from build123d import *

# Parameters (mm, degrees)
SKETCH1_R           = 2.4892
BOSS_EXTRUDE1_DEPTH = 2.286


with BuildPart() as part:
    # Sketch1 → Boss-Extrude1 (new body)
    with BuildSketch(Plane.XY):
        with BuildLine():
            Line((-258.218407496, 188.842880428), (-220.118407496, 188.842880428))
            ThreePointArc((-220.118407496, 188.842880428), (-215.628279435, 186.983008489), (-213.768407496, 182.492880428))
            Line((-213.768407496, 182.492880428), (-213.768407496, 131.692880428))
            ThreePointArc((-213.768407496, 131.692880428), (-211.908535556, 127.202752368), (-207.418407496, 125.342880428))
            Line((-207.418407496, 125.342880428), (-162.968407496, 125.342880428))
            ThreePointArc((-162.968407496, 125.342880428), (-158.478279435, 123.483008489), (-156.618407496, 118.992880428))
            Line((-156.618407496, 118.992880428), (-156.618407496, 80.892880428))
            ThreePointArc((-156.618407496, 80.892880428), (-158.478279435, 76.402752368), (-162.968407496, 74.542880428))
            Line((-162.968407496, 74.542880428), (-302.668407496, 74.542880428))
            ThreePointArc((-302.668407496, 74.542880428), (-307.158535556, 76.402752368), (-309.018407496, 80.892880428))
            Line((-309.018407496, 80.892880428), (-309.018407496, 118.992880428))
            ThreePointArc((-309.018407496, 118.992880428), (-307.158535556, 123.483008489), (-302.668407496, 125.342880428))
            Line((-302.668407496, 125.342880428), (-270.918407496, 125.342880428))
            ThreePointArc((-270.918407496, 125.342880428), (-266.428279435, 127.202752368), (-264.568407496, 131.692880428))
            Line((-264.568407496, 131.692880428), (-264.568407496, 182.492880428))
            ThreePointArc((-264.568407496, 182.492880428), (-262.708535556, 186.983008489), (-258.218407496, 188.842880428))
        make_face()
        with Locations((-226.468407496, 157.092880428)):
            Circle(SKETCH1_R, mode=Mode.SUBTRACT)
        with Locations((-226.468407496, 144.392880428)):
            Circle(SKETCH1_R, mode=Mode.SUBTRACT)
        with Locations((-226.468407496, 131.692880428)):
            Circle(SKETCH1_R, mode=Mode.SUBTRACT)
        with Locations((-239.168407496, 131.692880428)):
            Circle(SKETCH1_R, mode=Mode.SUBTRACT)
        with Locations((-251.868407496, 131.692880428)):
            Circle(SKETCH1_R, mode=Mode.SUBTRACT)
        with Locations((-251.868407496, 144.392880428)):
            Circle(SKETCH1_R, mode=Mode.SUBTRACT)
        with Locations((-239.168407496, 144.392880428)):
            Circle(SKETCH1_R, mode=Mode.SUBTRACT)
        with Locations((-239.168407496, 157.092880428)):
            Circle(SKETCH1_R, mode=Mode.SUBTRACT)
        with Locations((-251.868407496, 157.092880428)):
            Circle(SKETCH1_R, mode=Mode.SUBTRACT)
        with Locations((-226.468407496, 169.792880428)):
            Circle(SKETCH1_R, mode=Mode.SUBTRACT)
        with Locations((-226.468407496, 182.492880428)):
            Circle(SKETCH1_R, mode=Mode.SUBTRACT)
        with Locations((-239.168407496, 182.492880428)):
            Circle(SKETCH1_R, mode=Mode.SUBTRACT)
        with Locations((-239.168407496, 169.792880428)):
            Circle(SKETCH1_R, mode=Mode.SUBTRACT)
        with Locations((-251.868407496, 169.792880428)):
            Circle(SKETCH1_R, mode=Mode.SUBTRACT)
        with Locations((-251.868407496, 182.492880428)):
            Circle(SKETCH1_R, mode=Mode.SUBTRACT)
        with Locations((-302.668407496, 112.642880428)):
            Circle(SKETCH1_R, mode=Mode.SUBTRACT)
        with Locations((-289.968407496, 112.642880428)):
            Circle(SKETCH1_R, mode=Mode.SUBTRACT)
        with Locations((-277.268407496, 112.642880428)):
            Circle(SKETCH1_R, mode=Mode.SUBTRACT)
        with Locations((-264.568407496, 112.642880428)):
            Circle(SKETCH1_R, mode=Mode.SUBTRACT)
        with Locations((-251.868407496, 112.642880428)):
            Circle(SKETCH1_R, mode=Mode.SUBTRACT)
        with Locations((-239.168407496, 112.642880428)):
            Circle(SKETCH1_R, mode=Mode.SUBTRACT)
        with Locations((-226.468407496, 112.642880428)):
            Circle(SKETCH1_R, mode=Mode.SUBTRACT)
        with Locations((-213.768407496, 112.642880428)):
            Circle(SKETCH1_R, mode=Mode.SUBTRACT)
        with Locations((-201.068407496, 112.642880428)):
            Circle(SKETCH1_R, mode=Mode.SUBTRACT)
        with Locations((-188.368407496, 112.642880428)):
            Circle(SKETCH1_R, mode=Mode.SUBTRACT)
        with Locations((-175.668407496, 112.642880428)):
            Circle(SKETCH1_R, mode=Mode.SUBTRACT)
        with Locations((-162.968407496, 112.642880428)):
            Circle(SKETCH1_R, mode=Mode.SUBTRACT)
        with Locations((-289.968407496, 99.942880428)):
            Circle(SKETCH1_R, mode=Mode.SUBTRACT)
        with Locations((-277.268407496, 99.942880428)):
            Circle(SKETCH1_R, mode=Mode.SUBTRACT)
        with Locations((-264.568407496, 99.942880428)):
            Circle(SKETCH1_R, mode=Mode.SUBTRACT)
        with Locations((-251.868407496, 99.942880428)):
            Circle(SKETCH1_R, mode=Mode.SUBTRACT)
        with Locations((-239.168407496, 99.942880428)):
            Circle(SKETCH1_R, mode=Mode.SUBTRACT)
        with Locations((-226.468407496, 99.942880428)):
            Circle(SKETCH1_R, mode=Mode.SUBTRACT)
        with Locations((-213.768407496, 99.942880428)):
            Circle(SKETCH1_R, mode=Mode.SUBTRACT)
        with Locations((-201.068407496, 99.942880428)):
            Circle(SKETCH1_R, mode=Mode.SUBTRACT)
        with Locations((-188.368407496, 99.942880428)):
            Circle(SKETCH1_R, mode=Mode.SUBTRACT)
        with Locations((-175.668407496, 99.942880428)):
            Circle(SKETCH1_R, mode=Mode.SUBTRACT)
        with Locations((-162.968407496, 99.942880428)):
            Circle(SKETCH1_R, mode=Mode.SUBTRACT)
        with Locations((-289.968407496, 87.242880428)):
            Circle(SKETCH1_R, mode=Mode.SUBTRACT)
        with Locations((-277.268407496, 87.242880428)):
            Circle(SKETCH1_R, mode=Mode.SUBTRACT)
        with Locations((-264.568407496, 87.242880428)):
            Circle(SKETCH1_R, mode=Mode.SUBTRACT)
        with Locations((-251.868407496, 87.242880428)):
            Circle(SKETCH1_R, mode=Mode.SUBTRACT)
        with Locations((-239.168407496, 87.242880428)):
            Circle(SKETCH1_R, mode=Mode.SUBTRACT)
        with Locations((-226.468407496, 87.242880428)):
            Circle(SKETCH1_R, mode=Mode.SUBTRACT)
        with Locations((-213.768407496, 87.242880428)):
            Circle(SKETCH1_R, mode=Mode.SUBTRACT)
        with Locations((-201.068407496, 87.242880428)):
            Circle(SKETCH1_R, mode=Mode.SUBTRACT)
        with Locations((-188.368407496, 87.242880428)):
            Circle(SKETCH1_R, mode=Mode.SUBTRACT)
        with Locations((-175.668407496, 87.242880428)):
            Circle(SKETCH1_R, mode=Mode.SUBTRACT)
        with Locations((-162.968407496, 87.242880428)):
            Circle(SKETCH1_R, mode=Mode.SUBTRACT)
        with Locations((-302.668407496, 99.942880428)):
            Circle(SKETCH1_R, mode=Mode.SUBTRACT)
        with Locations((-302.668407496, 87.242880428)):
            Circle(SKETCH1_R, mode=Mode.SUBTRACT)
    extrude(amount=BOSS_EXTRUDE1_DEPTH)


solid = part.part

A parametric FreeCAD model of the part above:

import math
import FreeCAD as App
import Part
import Sketcher
from FreeCAD import Vector
Q = App.Units.Quantity

doc = App.newDocument("Part")
body = doc.addObject("PartDesign::Body", "Body")

sketch1 = body.newObject("Sketcher::SketchObject", "Sketch")
sketch1.AttachmentSupport = (doc.getObject("XY_Plane"), [""])
sketch1.MapMode = "FlatFace"
sketch1.addGeometry(Part.LineSegment(Vector(-220.1, 188.8, 0), Vector(-258.2, 188.8, 0)), False)
sketch1.addGeometry(Part.ArcOfCircle(Part.Circle(Vector(-258.2, 182.5, 0), Vector(0, 0, 1), 6.3), math.radians(90), math.radians(180)), False)
sketch1.addGeometry(Part.LineSegment(Vector(-264.6, 182.5, 0), Vector(-264.6, 131.7, 0)), False)
sketch1.addGeometry(Part.ArcOfCircle(Part.Circle(Vector(-270.9, 131.7, 0), Vector(0, 0, 1), 6.3), math.radians(-90), math.radians(0)), False)
sketch1.addGeometry(Part.LineSegment(Vector(-270.9, 125.3, 0), Vector(-302.7, 125.3, 0)), False)
sketch1.addGeometry(Part.ArcOfCircle(Part.Circle(Vector(-302.7, 119, 0), Vector(0, 0, 1), 6.3), math.radians(90), math.radians(180)), False)
sketch1.addGeometry(Part.LineSegment(Vector(-309, 119, 0), Vector(-309, 80.9, 0)), False)
sketch1.addGeometry(Part.ArcOfCircle(Part.Circle(Vector(-302.7, 80.9, 0), Vector(0, 0, 1), 6.4), math.radians(-180), math.radians(-90)), False)
sketch1.addGeometry(Part.LineSegment(Vector(-302.7, 74.5, 0), Vector(-163, 74.5, 0)), False)
sketch1.addGeometry(Part.ArcOfCircle(Part.Circle(Vector(-163, 80.9, 0), Vector(0, 0, 1), 6.3), math.radians(-90), math.radians(0)), False)
sketch1.addGeometry(Part.LineSegment(Vector(-156.6, 80.9, 0), Vector(-156.6, 119, 0)), False)
sketch1.addGeometry(Part.ArcOfCircle(Part.Circle(Vector(-163, 119, 0), Vector(0, 0, 1), 6.3), math.radians(0), math.radians(90)), False)
sketch1.addGeometry(Part.LineSegment(Vector(-163, 125.3, 0), Vector(-207.4, 125.3, 0)), False)
sketch1.addGeometry(Part.ArcOfCircle(Part.Circle(Vector(-207.4, 131.7, 0), Vector(0, 0, 1), 6.4), math.radians(-180), math.radians(-90)), False)
sketch1.addGeometry(Part.LineSegment(Vector(-213.8, 131.7, 0), Vector(-213.8, 182.5, 0)), False)
sketch1.addGeometry(Part.ArcOfCircle(Part.Circle(Vector(-220.1, 182.5, 0), Vector(0, 0, 1), 6.3), math.radians(0), math.radians(90)), False)
sketch1.addGeometry(Part.Circle(Vector(-163, 87.2, 0), Vector(0, 0, 1), 2.5), False)
sketch1.addGeometry(Part.Circle(Vector(-175.7, 87.2, 0), Vector(0, 0, 1), 2.5), False)
sketch1.addGeometry(Part.Circle(Vector(-188.4, 87.2, 0), Vector(0, 0, 1), 2.5), False)
sketch1.addGeometry(Part.Circle(Vector(-163, 99.9, 0), Vector(0, 0, 1), 2.5), False)
sketch1.addGeometry(Part.Circle(Vector(-175.7, 99.9, 0), Vector(0, 0, 1), 2.5), False)
sketch1.addGeometry(Part.Circle(Vector(-188.4, 99.9, 0), Vector(0, 0, 1), 2.5), False)
sketch1.addGeometry(Part.Circle(Vector(-201.1, 87.2, 0), Vector(0, 0, 1), 2.5), False)
sketch1.addGeometry(Part.Circle(Vector(-213.8, 87.2, 0), Vector(0, 0, 1), 2.5), False)
sketch1.addGeometry(Part.Circle(Vector(-226.5, 87.2, 0), Vector(0, 0, 1), 2.5), False)
sketch1.addGeometry(Part.Circle(Vector(-201.1, 99.9, 0), Vector(0, 0, 1), 2.5), False)
sketch1.addGeometry(Part.Circle(Vector(-213.8, 99.9, 0), Vector(0, 0, 1), 2.5), False)
sketch1.addGeometry(Part.Circle(Vector(-226.5, 99.9, 0), Vector(0, 0, 1), 2.5), False)
sketch1.addGeometry(Part.Circle(Vector(-163, 112.6, 0), Vector(0, 0, 1), 2.5), False)
sketch1.addGeometry(Part.Circle(Vector(-175.7, 112.6, 0), Vector(0, 0, 1), 2.5), False)
sketch1.addGeometry(Part.Circle(Vector(-188.4, 112.6, 0), Vector(0, 0, 1), 2.5), False)
sketch1.addGeometry(Part.Circle(Vector(-201.1, 112.6, 0), Vector(0, 0, 1), 2.5), False)
sketch1.addGeometry(Part.Circle(Vector(-213.8, 112.6, 0), Vector(0, 0, 1), 2.5), False)
sketch1.addGeometry(Part.Circle(Vector(-226.5, 112.6, 0), Vector(0, 0, 1), 2.5), False)
sketch1.addGeometry(Part.Circle(Vector(-226.5, 131.7, 0), Vector(0, 0, 1), 2.5), False)
sketch1.addGeometry(Part.Circle(Vector(-239.2, 87.2, 0), Vector(0, 0, 1), 2.5), False)
sketch1.addGeometry(Part.Circle(Vector(-251.9, 87.2, 0), Vector(0, 0, 1), 2.5), False)
sketch1.addGeometry(Part.Circle(Vector(-264.6, 87.2, 0), Vector(0, 0, 1), 2.5), False)
sketch1.addGeometry(Part.Circle(Vector(-239.2, 99.9, 0), Vector(0, 0, 1), 2.5), False)
sketch1.addGeometry(Part.Circle(Vector(-251.9, 99.9, 0), Vector(0, 0, 1), 2.5), False)
sketch1.addGeometry(Part.Circle(Vector(-264.6, 99.9, 0), Vector(0, 0, 1), 2.5), False)
sketch1.addGeometry(Part.Circle(Vector(-277.3, 87.2, 0), Vector(0, 0, 1), 2.5), False)
sketch1.addGeometry(Part.Circle(Vector(-290, 87.2, 0), Vector(0, 0, 1), 2.5), False)
sketch1.addGeometry(Part.Circle(Vector(-302.7, 87.2, 0), Vector(0, 0, 1), 2.5), False)
sketch1.addGeometry(Part.Circle(Vector(-277.3, 99.9, 0), Vector(0, 0, 1), 2.5), False)
sketch1.addGeometry(Part.Circle(Vector(-290, 99.9, 0), Vector(0, 0, 1), 2.5), False)
sketch1.addGeometry(Part.Circle(Vector(-302.7, 99.9, 0), Vector(0, 0, 1), 2.5), False)
sketch1.addGeometry(Part.Circle(Vector(-239.2, 112.6, 0), Vector(0, 0, 1), 2.5), False)
sketch1.addGeometry(Part.Circle(Vector(-251.9, 112.6, 0), Vector(0, 0, 1), 2.5), False)
sketch1.addGeometry(Part.Circle(Vector(-264.6, 112.6, 0), Vector(0, 0, 1), 2.5), False)
sketch1.addGeometry(Part.Circle(Vector(-239.2, 131.7, 0), Vector(0, 0, 1), 2.5), False)
sketch1.addGeometry(Part.Circle(Vector(-251.9, 131.7, 0), Vector(0, 0, 1), 2.5), False)
sketch1.addGeometry(Part.Circle(Vector(-277.3, 112.6, 0), Vector(0, 0, 1), 2.5), False)
sketch1.addGeometry(Part.Circle(Vector(-290, 112.6, 0), Vector(0, 0, 1), 2.5), False)
sketch1.addGeometry(Part.Circle(Vector(-302.7, 112.6, 0), Vector(0, 0, 1), 2.5), False)
sketch1.addGeometry(Part.Circle(Vector(-226.5, 144.4, 0), Vector(0, 0, 1), 2.5), False)
sketch1.addGeometry(Part.Circle(Vector(-226.5, 157.1, 0), Vector(0, 0, 1), 2.5), False)
sketch1.addGeometry(Part.Circle(Vector(-226.5, 169.8, 0), Vector(0, 0, 1), 2.5), False)
sketch1.addGeometry(Part.Circle(Vector(-226.5, 182.5, 0), Vector(0, 0, 1), 2.5), False)
sketch1.addGeometry(Part.Circle(Vector(-239.2, 144.4, 0), Vector(0, 0, 1), 2.5), False)
sketch1.addGeometry(Part.Circle(Vector(-251.9, 144.4, 0), Vector(0, 0, 1), 2.5), False)
sketch1.addGeometry(Part.Circle(Vector(-239.2, 157.1, 0), Vector(0, 0, 1), 2.5), False)
sketch1.addGeometry(Part.Circle(Vector(-251.9, 157.1, 0), Vector(0, 0, 1), 2.5), False)
sketch1.addGeometry(Part.Circle(Vector(-239.2, 169.8, 0), Vector(0, 0, 1), 2.5), False)
sketch1.addGeometry(Part.Circle(Vector(-251.9, 169.8, 0), Vector(0, 0, 1), 2.5), False)
sketch1.addGeometry(Part.Circle(Vector(-239.2, 182.5, 0), Vector(0, 0, 1), 2.5), False)
sketch1.addGeometry(Part.Circle(Vector(-251.9, 182.5, 0), Vector(0, 0, 1), 2.5), False)
sketch1.addConstraint(Sketcher.Constraint("Tangent", 0, 2, 1, 1))
sketch1.addConstraint(Sketcher.Constraint("Tangent", 1, 2, 2, 1))
sketch1.addConstraint(Sketcher.Constraint("Tangent", 2, 2, 3, 2))
sketch1.addConstraint(Sketcher.Constraint("Tangent", 3, 1, 4, 1))
sketch1.addConstraint(Sketcher.Constraint("Tangent", 4, 2, 5, 1))
sketch1.addConstraint(Sketcher.Constraint("Tangent", 5, 2, 6, 1))
sketch1.addConstraint(Sketcher.Constraint("Tangent", 6, 2, 7, 1))
sketch1.addConstraint(Sketcher.Constraint("Tangent", 7, 2, 8, 1))
sketch1.addConstraint(Sketcher.Constraint("Tangent", 8, 2, 9, 1))
sketch1.addConstraint(Sketcher.Constraint("Tangent", 9, 2, 10, 1))
sketch1.addConstraint(Sketcher.Constraint("Tangent", 10, 2, 11, 1))
sketch1.addConstraint(Sketcher.Constraint("Tangent", 11, 2, 12, 1))
sketch1.addConstraint(Sketcher.Constraint("Tangent", 12, 2, 13, 2))
sketch1.addConstraint(Sketcher.Constraint("Tangent", 13, 1, 14, 1))
sketch1.addConstraint(Sketcher.Constraint("Tangent", 14, 2, 15, 1))
sketch1.addConstraint(Sketcher.Constraint("Tangent", 15, 2, 0, 1))
sketch1.addConstraint(Sketcher.Constraint("Horizontal", 0))
sketch1.addConstraint(Sketcher.Constraint("Vertical", 2))
sketch1.addConstraint(Sketcher.Constraint("Horizontal", 4))
sketch1.addConstraint(Sketcher.Constraint("Vertical", 6))
sketch1.addConstraint(Sketcher.Constraint("Horizontal", 8))
sketch1.addConstraint(Sketcher.Constraint("Vertical", 10))
sketch1.addConstraint(Sketcher.Constraint("Horizontal", 12))
sketch1.addConstraint(Sketcher.Constraint("Vertical", 14))
sketch1.addConstraint(Sketcher.Constraint("Equal", 1, 3))
sketch1.addConstraint(Sketcher.Constraint("Equal", 3, 5))
sketch1.addConstraint(Sketcher.Constraint("Equal", 5, 7))
sketch1.addConstraint(Sketcher.Constraint("Equal", 7, 9))
sketch1.addConstraint(Sketcher.Constraint("Equal", 9, 11))
sketch1.addConstraint(Sketcher.Constraint("Equal", 11, 13))
sketch1.addConstraint(Sketcher.Constraint("Equal", 13, 15))
sketch1.addConstraint(Sketcher.Constraint("Equal", 16, 17))
sketch1.addConstraint(Sketcher.Constraint("Equal", 17, 18))
sketch1.addConstraint(Sketcher.Constraint("Equal", 18, 19))
sketch1.addConstraint(Sketcher.Constraint("Equal", 19, 20))
sketch1.addConstraint(Sketcher.Constraint("Equal", 20, 21))
sketch1.addConstraint(Sketcher.Constraint("Equal", 21, 22))
sketch1.addConstraint(Sketcher.Constraint("Equal", 22, 23))
sketch1.addConstraint(Sketcher.Constraint("Equal", 23, 24))
sketch1.addConstraint(Sketcher.Constraint("Equal", 24, 25))
sketch1.addConstraint(Sketcher.Constraint("Equal", 25, 26))
sketch1.addConstraint(Sketcher.Constraint("Equal", 26, 27))
sketch1.addConstraint(Sketcher.Constraint("Equal", 27, 28))
sketch1.addConstraint(Sketcher.Constraint("Equal", 28, 29))
sketch1.addConstraint(Sketcher.Constraint("Equal", 29, 30))
sketch1.addConstraint(Sketcher.Constraint("Equal", 30, 31))
sketch1.addConstraint(Sketcher.Constraint("Equal", 31, 32))
sketch1.addConstraint(Sketcher.Constraint("Equal", 32, 33))
sketch1.addConstraint(Sketcher.Constraint("Equal", 33, 34))
sketch1.addConstraint(Sketcher.Constraint("Equal", 34, 35))
sketch1.addConstraint(Sketcher.Constraint("Equal", 35, 36))
sketch1.addConstraint(Sketcher.Constraint("Equal", 36, 37))
sketch1.addConstraint(Sketcher.Constraint("Equal", 37, 38))
sketch1.addConstraint(Sketcher.Constraint("Equal", 38, 39))
sketch1.addConstraint(Sketcher.Constraint("Equal", 39, 40))
sketch1.addConstraint(Sketcher.Constraint("Equal", 40, 41))
sketch1.addConstraint(Sketcher.Constraint("Equal", 41, 42))
sketch1.addConstraint(Sketcher.Constraint("Equal", 42, 43))
sketch1.addConstraint(Sketcher.Constraint("Equal", 43, 44))
sketch1.addConstraint(Sketcher.Constraint("Equal", 44, 45))
sketch1.addConstraint(Sketcher.Constraint("Equal", 45, 46))
sketch1.addConstraint(Sketcher.Constraint("Equal", 46, 47))
sketch1.addConstraint(Sketcher.Constraint("Equal", 47, 48))
sketch1.addConstraint(Sketcher.Constraint("Equal", 48, 49))
sketch1.addConstraint(Sketcher.Constraint("Equal", 49, 50))
sketch1.addConstraint(Sketcher.Constraint("Equal", 50, 51))
sketch1.addConstraint(Sketcher.Constraint("Equal", 51, 52))
sketch1.addConstraint(Sketcher.Constraint("Equal", 52, 53))
sketch1.addConstraint(Sketcher.Constraint("Equal", 53, 54))
sketch1.addConstraint(Sketcher.Constraint("Equal", 54, 55))
sketch1.addConstraint(Sketcher.Constraint("Equal", 55, 56))
sketch1.addConstraint(Sketcher.Constraint("Equal", 56, 57))
sketch1.addConstraint(Sketcher.Constraint("Equal", 57, 58))
sketch1.addConstraint(Sketcher.Constraint("Equal", 58, 59))
sketch1.addConstraint(Sketcher.Constraint("Equal", 59, 60))
sketch1.addConstraint(Sketcher.Constraint("Equal", 60, 61))
sketch1.addConstraint(Sketcher.Constraint("Equal", 61, 62))
sketch1.addConstraint(Sketcher.Constraint("Equal", 62, 63))
sketch1.addConstraint(Sketcher.Constraint("Equal", 63, 64))
sketch1.addConstraint(Sketcher.Constraint("Equal", 64, 65))
sketch1.addConstraint(Sketcher.Constraint("Equal", 65, 66))
sketch1.addConstraint(Sketcher.Constraint("Horizontal", 5, 3, 11, 3))
sketch1.addConstraint(Sketcher.Constraint("Horizontal", 16, 3, 17, 3))
sketch1.addConstraint(Sketcher.Constraint("Horizontal", 17, 3, 18, 3))
sketch1.addConstraint(Sketcher.Constraint("Horizontal", 19, 3, 20, 3))
sketch1.addConstraint(Sketcher.Constraint("Horizontal", 20, 3, 21, 3))
sketch1.addConstraint(Sketcher.Constraint("Horizontal", 18, 3, 22, 3))
sketch1.addConstraint(Sketcher.Constraint("Horizontal", 22, 3, 23, 3))
sketch1.addConstraint(Sketcher.Constraint("Horizontal", 23, 3, 24, 3))
sketch1.addConstraint(Sketcher.Constraint("Horizontal", 21, 3, 25, 3))
sketch1.addConstraint(Sketcher.Constraint("Horizontal", 25, 3, 26, 3))
sketch1.addConstraint(Sketcher.Constraint("Horizontal", 26, 3, 27, 3))
sketch1.addConstraint(Sketcher.Constraint("Horizontal", 28, 3, 29, 3))
sketch1.addConstraint(Sketcher.Constraint("Horizontal", 29, 3, 30, 3))
sketch1.addConstraint(Sketcher.Constraint("Horizontal", 30, 3, 31, 3))
sketch1.addConstraint(Sketcher.Constraint("Horizontal", 31, 3, 32, 3))
sketch1.addConstraint(Sketcher.Constraint("Horizontal", 32, 3, 33, 3))
sketch1.addConstraint(Sketcher.Constraint("Horizontal", 13, 3, 34, 3))
sketch1.addConstraint(Sketcher.Constraint("Horizontal", 24, 3, 35, 3))
sketch1.addConstraint(Sketcher.Constraint("Horizontal", 35, 3, 36, 3))
sketch1.addConstraint(Sketcher.Constraint("Horizontal", 36, 3, 37, 3))
sketch1.addConstraint(Sketcher.Constraint("Horizontal", 27, 3, 38, 3))
sketch1.addConstraint(Sketcher.Constraint("Horizontal", 38, 3, 39, 3))
sketch1.addConstraint(Sketcher.Constraint("Horizontal", 39, 3, 40, 3))
sketch1.addConstraint(Sketcher.Constraint("Horizontal", 37, 3, 41, 3))
sketch1.addConstraint(Sketcher.Constraint("Horizontal", 41, 3, 42, 3))
sketch1.addConstraint(Sketcher.Constraint("Horizontal", 42, 3, 43, 3))
sketch1.addConstraint(Sketcher.Constraint("Horizontal", 40, 3, 44, 3))
sketch1.addConstraint(Sketcher.Constraint("Horizontal", 44, 3, 45, 3))
sketch1.addConstraint(Sketcher.Constraint("Horizontal", 45, 3, 46, 3))
sketch1.addConstraint(Sketcher.Constraint("Horizontal", 33, 3, 47, 3))
sketch1.addConstraint(Sketcher.Constraint("Horizontal", 47, 3, 48, 3))
sketch1.addConstraint(Sketcher.Constraint("Horizontal", 48, 3, 49, 3))
sketch1.addConstraint(Sketcher.Constraint("Horizontal", 34, 3, 50, 3))
sketch1.addConstraint(Sketcher.Constraint("Horizontal", 50, 3, 51, 3))
sketch1.addConstraint(Sketcher.Constraint("Horizontal", 49, 3, 52, 3))
sketch1.addConstraint(Sketcher.Constraint("Horizontal", 52, 3, 53, 3))
sketch1.addConstraint(Sketcher.Constraint("Horizontal", 53, 3, 54, 3))
sketch1.addConstraint(Sketcher.Constraint("Horizontal", 15, 3, 58, 3))
sketch1.addConstraint(Sketcher.Constraint("Horizontal", 55, 3, 59, 3))
sketch1.addConstraint(Sketcher.Constraint("Horizontal", 59, 3, 60, 3))
sketch1.addConstraint(Sketcher.Constraint("Horizontal", 56, 3, 61, 3))
sketch1.addConstraint(Sketcher.Constraint("Horizontal", 61, 3, 62, 3))
sketch1.addConstraint(Sketcher.Constraint("Horizontal", 57, 3, 63, 3))
sketch1.addConstraint(Sketcher.Constraint("Horizontal", 63, 3, 64, 3))
sketch1.addConstraint(Sketcher.Constraint("Horizontal", 58, 3, 65, 3))
sketch1.addConstraint(Sketcher.Constraint("Horizontal", 65, 3, 66, 3))
sketch1.addConstraint(Sketcher.Constraint("Vertical", 11, 3, 16, 3))
sketch1.addConstraint(Sketcher.Constraint("Vertical", 16, 3, 19, 3))
sketch1.addConstraint(Sketcher.Constraint("Vertical", 17, 3, 20, 3))
sketch1.addConstraint(Sketcher.Constraint("Vertical", 18, 3, 21, 3))
sketch1.addConstraint(Sketcher.Constraint("Vertical", 22, 3, 25, 3))
sketch1.addConstraint(Sketcher.Constraint("Vertical", 23, 3, 26, 3))
sketch1.addConstraint(Sketcher.Constraint("Vertical", 24, 3, 27, 3))
sketch1.addConstraint(Sketcher.Constraint("Vertical", 19, 3, 28, 3))
sketch1.addConstraint(Sketcher.Constraint("Vertical", 20, 3, 29, 3))
sketch1.addConstraint(Sketcher.Constraint("Vertical", 21, 3, 30, 3))
sketch1.addConstraint(Sketcher.Constraint("Vertical", 25, 3, 31, 3))
sketch1.addConstraint(Sketcher.Constraint("Vertical", 26, 3, 32, 3))
sketch1.addConstraint(Sketcher.Constraint("Vertical", 27, 3, 33, 3))
sketch1.addConstraint(Sketcher.Constraint("Vertical", 33, 3, 34, 3))
sketch1.addConstraint(Sketcher.Constraint("Vertical", 35, 3, 38, 3))
sketch1.addConstraint(Sketcher.Constraint("Vertical", 36, 3, 39, 3))
sketch1.addConstraint(Sketcher.Constraint("Vertical", 37, 3, 40, 3))
sketch1.addConstraint(Sketcher.Constraint("Vertical", 7, 3, 43, 3))
sketch1.addConstraint(Sketcher.Constraint("Vertical", 41, 3, 44, 3))
sketch1.addConstraint(Sketcher.Constraint("Vertical", 42, 3, 45, 3))
sketch1.addConstraint(Sketcher.Constraint("Vertical", 43, 3, 46, 3))
sketch1.addConstraint(Sketcher.Constraint("Vertical", 38, 3, 47, 3))
sketch1.addConstraint(Sketcher.Constraint("Vertical", 39, 3, 48, 3))
sketch1.addConstraint(Sketcher.Constraint("Vertical", 40, 3, 49, 3))
sketch1.addConstraint(Sketcher.Constraint("Vertical", 47, 3, 50, 3))
sketch1.addConstraint(Sketcher.Constraint("Vertical", 48, 3, 51, 3))
sketch1.addConstraint(Sketcher.Constraint("Vertical", 44, 3, 52, 3))
sketch1.addConstraint(Sketcher.Constraint("Vertical", 45, 3, 53, 3))
sketch1.addConstraint(Sketcher.Constraint("Vertical", 46, 3, 54, 3))
sketch1.addConstraint(Sketcher.Constraint("Vertical", 34, 3, 55, 3))
sketch1.addConstraint(Sketcher.Constraint("Vertical", 55, 3, 56, 3))
sketch1.addConstraint(Sketcher.Constraint("Vertical", 56, 3, 57, 3))
sketch1.addConstraint(Sketcher.Constraint("Vertical", 57, 3, 58, 3))
sketch1.addConstraint(Sketcher.Constraint("Vertical", 50, 3, 59, 3))
sketch1.addConstraint(Sketcher.Constraint("Vertical", 51, 3, 60, 3))
sketch1.addConstraint(Sketcher.Constraint("Vertical", 59, 3, 61, 3))
sketch1.addConstraint(Sketcher.Constraint("Vertical", 60, 3, 62, 3))
sketch1.addConstraint(Sketcher.Constraint("Vertical", 61, 3, 63, 3))
sketch1.addConstraint(Sketcher.Constraint("Vertical", 62, 3, 64, 3))
sketch1.addConstraint(Sketcher.Constraint("Vertical", 63, 3, 65, 3))
sketch1.addConstraint(Sketcher.Constraint("Vertical", 64, 3, 66, 3))
sketch1.addConstraint(Sketcher.Constraint("Vertical", 49, 3, 1, 2))
sketch1.addConstraint(Sketcher.Constraint("Vertical", 32, 3, 13, 1))
sketch1.addConstraint(Sketcher.Constraint("Equal", 0, 6))
sketch1.addConstraint(Sketcher.Constraint("DistanceY", 2, 2, 2, 1, Q("2 in")))
sketch1.addConstraint(Sketcher.Constraint("Radius", 1, Q("0.25 in")))
sketch1.addConstraint(Sketcher.Constraint("Diameter", 16, Q("0.196 in")))
sketch1.addConstraint(Sketcher.Constraint("DistanceX", 0, 2, 0, 1, Q("1.5 in")))
sketch1.addConstraint(Sketcher.Constraint("DistanceX", 8, 1, 8, 2, Q("5.5 in")))
sketch1.addConstraint(Sketcher.Constraint("DistanceX", 4, 2, 4, 1, Q("1.25 in")))
sketch1.addConstraint(Sketcher.Constraint("DistanceY", -1, 1, 1, 3, 182.49288))
sketch1.addConstraint(Sketcher.Constraint("DistanceY", -1, 1, 16, 3, 87.24288))
sketch1.addConstraint(Sketcher.Constraint("DistanceY", -1, 1, 19, 3, 99.94288))
sketch1.addConstraint(Sketcher.Constraint("DistanceY", -1, 1, 28, 3, 112.64288))
sketch1.addConstraint(Sketcher.Constraint("DistanceY", -1, 1, 55, 3, 144.39288))
sketch1.addConstraint(Sketcher.Constraint("DistanceY", -1, 1, 56, 3, 157.09288))
sketch1.addConstraint(Sketcher.Constraint("DistanceY", -1, 1, 57, 3, 169.79288))
sketch1.addConstraint(Sketcher.Constraint("DistanceX", 1, 3, -1, 1, 258.218407))
sketch1.addConstraint(Sketcher.Constraint("DistanceX", 17, 3, -1, 1, 175.668407))
sketch1.addConstraint(Sketcher.Constraint("DistanceX", 18, 3, -1, 1, 188.368407))
sketch1.addConstraint(Sketcher.Constraint("DistanceX", 22, 3, -1, 1, 201.068407))
sketch1.addConstraint(Sketcher.Constraint("DistanceX", 24, 3, -1, 1, 226.468407))
sketch1.addConstraint(Sketcher.Constraint("DistanceX", 35, 3, -1, 1, 239.168407))
sketch1.addConstraint(Sketcher.Constraint("DistanceX", 36, 3, -1, 1, 251.868407))
sketch1.addConstraint(Sketcher.Constraint("DistanceX", 41, 3, -1, 1, 277.268407))
sketch1.addConstraint(Sketcher.Constraint("DistanceX", 42, 3, -1, 1, 289.968407))
pad1 = body.newObject("PartDesign::Pad", "Pad")
pad1.Profile = sketch1
pad1.Length = Q("0.09 in")

doc.recompute()
